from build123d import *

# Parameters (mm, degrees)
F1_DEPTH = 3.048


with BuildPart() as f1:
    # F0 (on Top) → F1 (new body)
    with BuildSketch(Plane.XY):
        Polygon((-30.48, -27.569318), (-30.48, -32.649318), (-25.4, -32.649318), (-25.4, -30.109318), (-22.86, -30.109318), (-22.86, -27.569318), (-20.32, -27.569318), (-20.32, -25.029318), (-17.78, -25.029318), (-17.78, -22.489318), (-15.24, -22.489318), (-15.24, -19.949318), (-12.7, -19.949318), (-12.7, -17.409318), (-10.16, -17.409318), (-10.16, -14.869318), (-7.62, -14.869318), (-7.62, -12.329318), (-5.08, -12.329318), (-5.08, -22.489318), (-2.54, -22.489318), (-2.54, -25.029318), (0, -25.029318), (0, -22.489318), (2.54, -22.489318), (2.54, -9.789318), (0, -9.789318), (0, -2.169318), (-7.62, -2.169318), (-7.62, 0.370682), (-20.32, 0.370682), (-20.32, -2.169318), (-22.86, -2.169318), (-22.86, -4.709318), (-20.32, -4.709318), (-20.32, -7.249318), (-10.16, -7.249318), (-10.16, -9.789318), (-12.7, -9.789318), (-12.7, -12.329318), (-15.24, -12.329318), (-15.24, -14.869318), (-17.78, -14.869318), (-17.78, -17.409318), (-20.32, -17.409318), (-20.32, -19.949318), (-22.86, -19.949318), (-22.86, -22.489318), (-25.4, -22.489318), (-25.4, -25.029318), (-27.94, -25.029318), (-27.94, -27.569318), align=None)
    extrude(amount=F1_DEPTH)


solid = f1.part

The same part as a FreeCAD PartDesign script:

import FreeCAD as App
import Part
import Sketcher

V = App.Vector
Q = App.Units.Quantity

doc = App.newDocument("Part")
body = doc.addObject("PartDesign::Body", "Body")

# Sketch on XY plane
sketch1 = doc.addObject("Sketcher::SketchObject", "Sketch")
body.addObject(sketch1)
sketch1.AttachmentSupport = (doc.XY_Plane, [""])
sketch1.MapMode = "FlatFace"
sketch1.addGeometry(Part.LineSegment(V(-30.5, -27.6, 0), V(-30.5, -32.6, 0)), False)
sketch1.addGeometry(Part.LineSegment(V(-30.5, -32.6, 0), V(-25.4, -32.6, 0)), False)
sketch1.addGeometry(Part.LineSegment(V(-25.4, -32.6, 0), V(-25.4, -30.1, 0)), False)
sketch1.addGeometry(Part.LineSegment(V(-25.4, -30.1, 0), V(-22.9, -30.1, 0)), False)
sketch1.addGeometry(Part.LineSegment(V(-22.9, -30.1, 0), V(-22.9, -27.6, 0)), False)
sketch1.addGeometry(Part.LineSegment(V(-22.9, -27.6, 0), V(-20.3, -27.6, 0)), False)
sketch1.addGeometry(Part.LineSegment(V(-20.3, -27.6, 0), V(-20.3, -25, 0)), False)
sketch1.addGeometry(Part.LineSegment(V(-20.3, -25, 0), V(-17.8, -25, 0)), False)
sketch1.addGeometry(Part.LineSegment(V(-17.8, -25, 0), V(-17.8, -22.5, 0)), False)
sketch1.addGeometry(Part.LineSegment(V(-17.8, -22.5, 0), V(-15.2, -22.5, 0)), False)
sketch1.addGeometry(Part.LineSegment(V(-15.2, -22.5, 0), V(-15.2, -19.9, 0)), False)
sketch1.addGeometry(Part.LineSegment(V(-15.2, -19.9, 0), V(-12.7, -19.9, 0)), False)
sketch1.addGeometry(Part.LineSegment(V(-12.7, -19.9, 0), V(-12.7, -17.4, 0)), False)
sketch1.addGeometry(Part.LineSegment(V(-12.7, -17.4, 0), V(-10.2, -17.4, 0)), False)
sketch1.addGeometry(Part.LineSegment(V(-10.2, -17.4, 0), V(-10.2, -14.9, 0)), False)
sketch1.addGeometry(Part.LineSegment(V(-10.2, -14.9, 0), V(-7.6, -14.9, 0)), False)
sketch1.addGeometry(Part.LineSegment(V(-7.6, -14.9, 0), V(-7.6, -12.3, 0)), False)
sketch1.addGeometry(Part.LineSegment(V(-7.6, -12.3, 0), V(-5.1, -12.3, 0)), False)
sketch1.addGeometry(Part.LineSegment(V(-5.1, -12.3, 0), V(-5.1, -22.5, 0)), False)
sketch1.addGeometry(Part.LineSegment(V(-5.1, -22.5, 0), V(-2.5, -22.5, 0)), False)
sketch1.addGeometry(Part.LineSegment(V(-2.5, -22.5, 0), V(-2.5, -25, 0)), False)
sketch1.addGeometry(Part.LineSegment(V(-2.5, -25, 0), V(0, -25, 0)), False)
sketch1.addGeometry(Part.LineSegment(V(0, -25, 0), V(0, -22.5, 0)), False)
sketch1.addGeometry(Part.LineSegment(V(0, -22.5, 0), V(2.5, -22.5, 0)), False)
sketch1.addGeometry(Part.LineSegment(V(2.5, -22.5, 0), V(2.5, -9.8, 0)), False)
sketch1.addGeometry(Part.LineSegment(V(2.5, -9.8, 0), V(0, -9.8, 0)), False)
sketch1.addGeometry(Part.LineSegment(V(0, -9.8, 0), V(0, -2.2, 0)), False)
sketch1.addGeometry(Part.LineSegment(V(0, -2.2, 0), V(-7.6, -2.2, 0)), False)
sketch1.addGeometry(Part.LineSegment(V(-7.6, -2.2, 0), V(-7.6, 0.4, 0)), False)
sketch1.addGeometry(Part.LineSegment(V(-7.6, 0.4, 0), V(-20.3, 0.4, 0)), False)
sketch1.addGeometry(Part.LineSegment(V(-20.3, 0.4, 0), V(-20.3, -2.2, 0)), False)
sketch1.addGeometry(Part.LineSegment(V(-20.3, -2.2, 0), V(-22.9, -2.2, 0)), False)
sketch1.addGeometry(Part.LineSegment(V(-22.9, -2.2, 0), V(-22.9, -4.7, 0)), False)
sketch1.addGeometry(Part.LineSegment(V(-22.9, -4.7, 0), V(-20.3, -4.7, 0)), False)
sketch1.addGeometry(Part.LineSegment(V(-20.3, -4.7, 0), V(-20.3, -7.2, 0)), False)
sketch1.addGeometry(Part.LineSegment(V(-20.3, -7.2, 0), V(-10.2, -7.2, 0)), False)
sketch1.addGeometry(Part.LineSegment(V(-10.2, -7.2, 0), V(-10.2, -9.8, 0)), False)
sketch1.addGeometry(Part.LineSegment(V(-10.2, -9.8, 0), V(-12.7, -9.8, 0)), False)
sketch1.addGeometry(Part.LineSegment(V(-12.7, -9.8, 0), V(-12.7, -12.3, 0)), False)
sketch1.addGeometry(Part.LineSegment(V(-12.7, -12.3, 0), V(-15.2, -12.3, 0)), False)
sketch1.addGeometry(Part.LineSegment(V(-15.2, -12.3, 0), V(-15.2, -14.9, 0)), False)
sketch1.addGeometry(Part.LineSegment(V(-15.2, -14.9, 0), V(-17.8, -14.9, 0)), False)
sketch1.addGeometry(Part.LineSegment(V(-17.8, -14.9, 0), V(-17.8, -17.4, 0)), False)
sketch1.addGeometry(Part.LineSegment(V(-17.8, -17.4, 0), V(-20.3, -17.4, 0)), False)
sketch1.addGeometry(Part.LineSegment(V(-20.3, -17.4, 0), V(-20.3, -19.9, 0)), False)
sketch1.addGeometry(Part.LineSegment(V(-20.3, -19.9, 0), V(-22.9, -19.9, 0)), False)
sketch1.addGeometry(Part.LineSegment(V(-22.9, -19.9, 0), V(-22.9, -22.5, 0)), False)
sketch1.addGeometry(Part.LineSegment(V(-22.9, -22.5, 0), V(-25.4, -22.5, 0)), False)
sketch1.addGeometry(Part.LineSegment(V(-25.4, -22.5, 0), V(-25.4, -25, 0)), False)
sketch1.addGeometry(Part.LineSegment(V(-25.4, -25, 0), V(-27.9, -25, 0)), False)
sketch1.addGeometry(Part.LineSegment(V(-27.9, -25, 0), V(-27.9, -27.6, 0)), False)
sketch1.addGeometry(Part.LineSegment(V(-27.9, -27.6, 0), V(-30.5, -27.6, 0)), False)
sketch1.addConstraint(Sketcher.Constraint("Coincident", 0, 2, 1, 1))
sketch1.addConstraint(Sketcher.Constraint("Coincident", 1, 2, 2, 1))
sketch1.addConstraint(Sketcher.Constraint("Coincident", 2, 2, 3, 1))
sketch1.addConstraint(Sketcher.Constraint("Coincident", 3, 2, 4, 1))
sketch1.addConstraint(Sketcher.Constraint("Coincident", 4, 2, 5, 1))
sketch1.addConstraint(Sketcher.Constraint("Coincident", 5, 2, 6, 1))
sketch1.addConstraint(Sketcher.Constraint("Coincident", 6, 2, 7, 1))
sketch1.addConstraint(Sketcher.Constraint("Coincident", 7, 2, 8, 1))
sketch1.addConstraint(Sketcher.Constraint("Coincident", 8, 2, 9, 1))
sketch1.addConstraint(Sketcher.Constraint("Coincident", 9, 2, 10, 1))
sketch1.addConstraint(Sketcher.Constraint("Coincident", 10, 2, 11, 1))
sketch1.addConstraint(Sketcher.Constraint("Coincident", 11, 2, 12, 1))
sketch1.addConstraint(Sketcher.Constraint("Coincident", 12, 2, 13, 1))
sketch1.addConstraint(Sketcher.Constraint("Coincident", 13, 2, 14, 1))
sketch1.addConstraint(Sketcher.Constraint("Coincident", 14, 2, 15, 1))
sketch1.addConstraint(Sketcher.Constraint("Coincident", 15, 2, 16, 1))
sketch1.addConstraint(Sketcher.Constraint("Coincident", 16, 2, 17, 1))
sketch1.addConstraint(Sketcher.Constraint("Coincident", 17, 2, 18, 1))
sketch1.addConstraint(Sketcher.Constraint("Coincident", 18, 2, 19, 1))
sketch1.addConstraint(Sketcher.Constraint("Coincident", 19, 2, 20, 1))
sketch1.addConstraint(Sketcher.Constraint("Coincident", 20, 2, 21, 1))
sketch1.addConstraint(Sketcher.Constraint("Coincident", 21, 2, 22, 1))
sketch1.addConstraint(Sketcher.Constraint("Coincident", 22, 2, 23, 1))
sketch1.addConstraint(Sketcher.Constraint("Coincident", 23, 2, 24, 1))
sketch1.addConstraint(Sketcher.Constraint("Coincident", 24, 2, 25, 1))
sketch1.addConstraint(Sketcher.Constraint("Coincident", 25, 2, 26, 1))
sketch1.addConstraint(Sketcher.Constraint("Coincident", 26, 2, 27, 1))
sketch1.addConstraint(Sketcher.Constraint("Coincident", 27, 2, 28, 1))
sketch1.addConstraint(Sketcher.Constraint("Coincident", 28, 2, 29, 1))
sketch1.addConstraint(Sketcher.Constraint("Coincident", 29, 2, 30, 1))
sketch1.addConstraint(Sketcher.Constraint("Coincident", 30, 2, 31, 1))
sketch1.addConstraint(Sketcher.Constraint("Coincident", 31, 2, 32, 1))
sketch1.addConstraint(Sketcher.Constraint("Coincident", 32, 2, 33, 1))
sketch1.addConstraint(Sketcher.Constraint("Coincident", 33, 2, 34, 1))
sketch1.addConstraint(Sketcher.Constraint("Coincident", 34, 2, 35, 1))
sketch1.addConstraint(Sketcher.Constraint("Coincident", 35, 2, 36, 1))
sketch1.addConstraint(Sketcher.Constraint("Coincident", 36, 2, 37, 1))
sketch1.addConstraint(Sketcher.Constraint("Coincident", 37, 2, 38, 1))
sketch1.addConstraint(Sketcher.Constraint("Coincident", 38, 2, 39, 1))
sketch1.addConstraint(Sketcher.Constraint("Coincident", 39, 2, 40, 1))
sketch1.addConstraint(Sketcher.Constraint("Coincident", 40, 2, 41, 1))
sketch1.addConstraint(Sketcher.Constraint("Coincident", 41, 2, 42, 1))
sketch1.addConstraint(Sketcher.Constraint("Coincident", 42, 2, 43, 1))
sketch1.addConstraint(Sketcher.Constraint("Coincident", 43, 2, 44, 1))
sketch1.addConstraint(Sketcher.Constraint("Coincident", 44, 2, 45, 1))
sketch1.addConstraint(Sketcher.Constraint("Coincident", 45, 2, 46, 1))
sketch1.addConstraint(Sketcher.Constraint("Coincident", 46, 2, 47, 1))
sketch1.addConstraint(Sketcher.Constraint("Coincident", 47, 2, 48, 1))
sketch1.addConstraint(Sketcher.Constraint("Coincident", 48, 2, 49, 1))
sketch1.addConstraint(Sketcher.Constraint("Coincident", 49, 2, 50, 1))
sketch1.addConstraint(Sketcher.Constraint("Coincident", 50, 2, 51, 1))
sketch1.addConstraint(Sketcher.Constraint("Coincident", 51, 2, 0, 1))
sketch1.addConstraint(Sketcher.Constraint("Vertical", 0))
sketch1.addConstraint(Sketcher.Constraint("Horizontal", 1))
sketch1.addConstraint(Sketcher.Constraint("Vertical", 2))
sketch1.addConstraint(Sketcher.Constraint("Horizontal", 3))
sketch1.addConstraint(Sketcher.Constraint("Vertical", 4))
sketch1.addConstraint(Sketcher.Constraint("Horizontal", 5))
sketch1.addConstraint(Sketcher.Constraint("Vertical", 6))
sketch1.addConstraint(Sketcher.Constraint("Horizontal", 7))
sketch1.addConstraint(Sketcher.Constraint("Vertical", 8))
sketch1.addConstraint(Sketcher.Constraint("Horizontal", 9))
sketch1.addConstraint(Sketcher.Constraint("Vertical", 10))
sketch1.addConstraint(Sketcher.Constraint("Horizontal", 11))
sketch1.addConstraint(Sketcher.Constraint("Vertical", 12))
sketch1.addConstraint(Sketcher.Constraint("Horizontal", 13))
sketch1.addConstraint(Sketcher.Constraint("Vertical", 14))
sketch1.addConstraint(Sketcher.Constraint("Horizontal", 15))
sketch1.addConstraint(Sketcher.Constraint("Vertical", 16))
sketch1.addConstraint(Sketcher.Constraint("Horizontal", 17))
sketch1.addConstraint(Sketcher.Constraint("Vertical", 18))
sketch1.addConstraint(Sketcher.Constraint("Horizontal", 19))
sketch1.addConstraint(Sketcher.Constraint("Vertical", 20))
sketch1.addConstraint(Sketcher.Constraint("Horizontal", 21))
sketch1.addConstraint(Sketcher.Constraint("Vertical", 22))
sketch1.addConstraint(Sketcher.Constraint("Horizontal", 23))
sketch1.addConstraint(Sketcher.Constraint("Vertical", 24))
sketch1.addConstraint(Sketcher.Constraint("Horizontal", 25))
sketch1.addConstraint(Sketcher.Constraint("Vertical", 26))
sketch1.addConstraint(Sketcher.Constraint("Horizontal", 27))
sketch1.addConstraint(Sketcher.Constraint("Vertical", 28))
sketch1.addConstraint(Sketcher.Constraint("Horizontal", 29))
sketch1.addConstraint(Sketcher.Constraint("Vertical", 30))
sketch1.addConstraint(Sketcher.Constraint("Horizontal", 31))
sketch1.addConstraint(Sketcher.Constraint("Vertical", 32))
sketch1.addConstraint(Sketcher.Constraint("Horizontal", 33))
sketch1.addConstraint(Sketcher.Constraint("Vertical", 34))
sketch1.addConstraint(Sketcher.Constraint("Horizontal", 35))
sketch1.addConstraint(Sketcher.Constraint("Vertical", 36))
sketch1.addConstraint(Sketcher.Constraint("Horizontal", 37))
sketch1.addConstraint(Sketcher.Constraint("Vertical", 38))
sketch1.addConstraint(Sketcher.Constraint("Horizontal", 39))
sketch1.addConstraint(Sketcher.Constraint("Vertical", 40))
sketch1.addConstraint(Sketcher.Constraint("Horizontal", 41))
sketch1.addConstraint(Sketcher.Constraint("Vertical", 42))
sketch1.addConstraint(Sketcher.Constraint("Horizontal", 43))
sketch1.addConstraint(Sketcher.Constraint("Vertical", 44))
sketch1.addConstraint(Sketcher.Constraint("Horizontal", 45))
sketch1.addConstraint(Sketcher.Constraint("Vertical", 46))
sketch1.addConstraint(Sketcher.Constraint("Horizontal", 47))
sketch1.addConstraint(Sketcher.Constraint("Vertical", 48))
sketch1.addConstraint(Sketcher.Constraint("Horizontal", 49))
sketch1.addConstraint(Sketcher.Constraint("Vertical", 50))
sketch1.addConstraint(Sketcher.Constraint("Horizontal", 51))
sketch1.addConstraint(Sketcher.Constraint("Symmetric", 19, 2, 23, 2, -2))
sketch1.addConstraint(Sketcher.Constraint("PointOnObject", 21, 2, -2))
sketch1.addConstraint(Sketcher.Constraint("PointOnObject", 25, 2, -2))
sketch1.addConstraint(Sketcher.Constraint("Horizontal", 9, 2, 18, 2))
sketch1.addConstraint(Sketcher.Constraint("Horizontal", 7, 2, 20, 2))
sketch1.addConstraint(Sketcher.Constraint("Horizontal", 27, 2, 30, 2))
sketch1.addConstraint(Sketcher.Constraint("Horizontal", 25, 2, 36, 2))
sketch1.addConstraint(Sketcher.Constraint("Horizontal", 17, 2, 38, 2))
sketch1.addConstraint(Sketcher.Constraint("Horizontal", 15, 2, 40, 2))
sketch1.addConstraint(Sketcher.Constraint("Horizontal", 13, 2, 42, 2))
sketch1.addConstraint(Sketcher.Constraint("Horizontal", 11, 2, 44, 2))
sketch1.addConstraint(Sketcher.Constraint("Horizontal", 23, 2, 46, 2))
sketch1.addConstraint(Sketcher.Constraint("Horizontal", 21, 2, 48, 2))
sketch1.addConstraint(Sketcher.Constraint("Horizontal", 5, 2, 50, 2))
sketch1.addConstraint(Sketcher.Constraint("Vertical", 16, 2, 27, 2))
sketch1.addConstraint(Sketcher.Constraint("Vertical", 6, 2, 29, 2))
sketch1.addConstraint(Sketcher.Constraint("Vertical", 4, 2, 31, 2))
sketch1.addConstraint(Sketcher.Constraint("Vertical", 30, 2, 33, 2))
sketch1.addConstraint(Sketcher.Constraint("Vertical", 14, 2, 35, 2))
sketch1.addConstraint(Sketcher.Constraint("Vertical", 12, 2, 37, 2))
sketch1.addConstraint(Sketcher.Constraint("Vertical", 10, 2, 39, 2))
sketch1.addConstraint(Sketcher.Constraint("Vertical", 8, 2, 41, 2))
sketch1.addConstraint(Sketcher.Constraint("Vertical", 34, 2, 43, 2))
sketch1.addConstraint(Sketcher.Constraint("Vertical", 32, 2, 45, 2))
sketch1.addConstraint(Sketcher.Constraint("Vertical", 2, 2, 47, 2))
sketch1.addConstraint(Sketcher.Constraint("Equal", 3, 5))
sketch1.addConstraint(Sketcher.Constraint("Equal", 5, 7))
sketch1.addConstraint(Sketcher.Constraint("Equal", 7, 9))
sketch1.addConstraint(Sketcher.Constraint("Equal", 9, 11))
sketch1.addConstraint(Sketcher.Constraint("Equal", 11, 13))
sketch1.addConstraint(Sketcher.Constraint("Equal", 13, 15))
sketch1.addConstraint(Sketcher.Constraint("Equal", 15, 17))
sketch1.addConstraint(Sketcher.Constraint("Equal", 17, 19))
sketch1.addConstraint(Sketcher.Constraint("Equal", 19, 21))
sketch1.addConstraint(Sketcher.Constraint("Equal", 47, 49))
sketch1.addConstraint(Sketcher.Constraint("Equal", 49, 51))
sketch1.addConstraint(Sketcher.Constraint("Equal", 1, 0))
sketch1.addConstraint(Sketcher.Constraint("Equal", 51, 2))
sketch1.addConstraint(Sketcher.Constraint("Equal", 4, 6))
sketch1.addConstraint(Sketcher.Constraint("Equal", 6, 8))
sketch1.addConstraint(Sketcher.Constraint("Equal", 8, 10))
sketch1.addConstraint(Sketcher.Constraint("Equal", 10, 12))
sketch1.addConstraint(Sketcher.Constraint("Equal", 12, 14))
sketch1.addConstraint(Sketcher.Constraint("Equal", 14, 16))
sketch1.addConstraint(Sketcher.Constraint("Equal", 29, 24))
sketch1.addConstraint(Sketcher.Constraint("Equal", 27, 26))
sketch1.addConstraint(Sketcher.Constraint("Equal", 22, 28))
sketch1.addConstraint(Sketcher.Constraint("Equal", 30, 32))
sketch1.addConstraint(Sketcher.Constraint("Equal", 32, 34))
sketch1.addConstraint(Sketcher.Constraint("DistanceX", 1, 1, 1, 2, Q("0.2 in")))
sketch1.addConstraint(Sketcher.Constraint("DistanceY", 6, 2, -1, 1, 25.029318))
pad1 = doc.addObject("PartDesign::Pad", "Pad")
body.addObject(pad1)
pad1.Profile = sketch1
pad1.Length = Q("0.12 in")

doc.recompute()
